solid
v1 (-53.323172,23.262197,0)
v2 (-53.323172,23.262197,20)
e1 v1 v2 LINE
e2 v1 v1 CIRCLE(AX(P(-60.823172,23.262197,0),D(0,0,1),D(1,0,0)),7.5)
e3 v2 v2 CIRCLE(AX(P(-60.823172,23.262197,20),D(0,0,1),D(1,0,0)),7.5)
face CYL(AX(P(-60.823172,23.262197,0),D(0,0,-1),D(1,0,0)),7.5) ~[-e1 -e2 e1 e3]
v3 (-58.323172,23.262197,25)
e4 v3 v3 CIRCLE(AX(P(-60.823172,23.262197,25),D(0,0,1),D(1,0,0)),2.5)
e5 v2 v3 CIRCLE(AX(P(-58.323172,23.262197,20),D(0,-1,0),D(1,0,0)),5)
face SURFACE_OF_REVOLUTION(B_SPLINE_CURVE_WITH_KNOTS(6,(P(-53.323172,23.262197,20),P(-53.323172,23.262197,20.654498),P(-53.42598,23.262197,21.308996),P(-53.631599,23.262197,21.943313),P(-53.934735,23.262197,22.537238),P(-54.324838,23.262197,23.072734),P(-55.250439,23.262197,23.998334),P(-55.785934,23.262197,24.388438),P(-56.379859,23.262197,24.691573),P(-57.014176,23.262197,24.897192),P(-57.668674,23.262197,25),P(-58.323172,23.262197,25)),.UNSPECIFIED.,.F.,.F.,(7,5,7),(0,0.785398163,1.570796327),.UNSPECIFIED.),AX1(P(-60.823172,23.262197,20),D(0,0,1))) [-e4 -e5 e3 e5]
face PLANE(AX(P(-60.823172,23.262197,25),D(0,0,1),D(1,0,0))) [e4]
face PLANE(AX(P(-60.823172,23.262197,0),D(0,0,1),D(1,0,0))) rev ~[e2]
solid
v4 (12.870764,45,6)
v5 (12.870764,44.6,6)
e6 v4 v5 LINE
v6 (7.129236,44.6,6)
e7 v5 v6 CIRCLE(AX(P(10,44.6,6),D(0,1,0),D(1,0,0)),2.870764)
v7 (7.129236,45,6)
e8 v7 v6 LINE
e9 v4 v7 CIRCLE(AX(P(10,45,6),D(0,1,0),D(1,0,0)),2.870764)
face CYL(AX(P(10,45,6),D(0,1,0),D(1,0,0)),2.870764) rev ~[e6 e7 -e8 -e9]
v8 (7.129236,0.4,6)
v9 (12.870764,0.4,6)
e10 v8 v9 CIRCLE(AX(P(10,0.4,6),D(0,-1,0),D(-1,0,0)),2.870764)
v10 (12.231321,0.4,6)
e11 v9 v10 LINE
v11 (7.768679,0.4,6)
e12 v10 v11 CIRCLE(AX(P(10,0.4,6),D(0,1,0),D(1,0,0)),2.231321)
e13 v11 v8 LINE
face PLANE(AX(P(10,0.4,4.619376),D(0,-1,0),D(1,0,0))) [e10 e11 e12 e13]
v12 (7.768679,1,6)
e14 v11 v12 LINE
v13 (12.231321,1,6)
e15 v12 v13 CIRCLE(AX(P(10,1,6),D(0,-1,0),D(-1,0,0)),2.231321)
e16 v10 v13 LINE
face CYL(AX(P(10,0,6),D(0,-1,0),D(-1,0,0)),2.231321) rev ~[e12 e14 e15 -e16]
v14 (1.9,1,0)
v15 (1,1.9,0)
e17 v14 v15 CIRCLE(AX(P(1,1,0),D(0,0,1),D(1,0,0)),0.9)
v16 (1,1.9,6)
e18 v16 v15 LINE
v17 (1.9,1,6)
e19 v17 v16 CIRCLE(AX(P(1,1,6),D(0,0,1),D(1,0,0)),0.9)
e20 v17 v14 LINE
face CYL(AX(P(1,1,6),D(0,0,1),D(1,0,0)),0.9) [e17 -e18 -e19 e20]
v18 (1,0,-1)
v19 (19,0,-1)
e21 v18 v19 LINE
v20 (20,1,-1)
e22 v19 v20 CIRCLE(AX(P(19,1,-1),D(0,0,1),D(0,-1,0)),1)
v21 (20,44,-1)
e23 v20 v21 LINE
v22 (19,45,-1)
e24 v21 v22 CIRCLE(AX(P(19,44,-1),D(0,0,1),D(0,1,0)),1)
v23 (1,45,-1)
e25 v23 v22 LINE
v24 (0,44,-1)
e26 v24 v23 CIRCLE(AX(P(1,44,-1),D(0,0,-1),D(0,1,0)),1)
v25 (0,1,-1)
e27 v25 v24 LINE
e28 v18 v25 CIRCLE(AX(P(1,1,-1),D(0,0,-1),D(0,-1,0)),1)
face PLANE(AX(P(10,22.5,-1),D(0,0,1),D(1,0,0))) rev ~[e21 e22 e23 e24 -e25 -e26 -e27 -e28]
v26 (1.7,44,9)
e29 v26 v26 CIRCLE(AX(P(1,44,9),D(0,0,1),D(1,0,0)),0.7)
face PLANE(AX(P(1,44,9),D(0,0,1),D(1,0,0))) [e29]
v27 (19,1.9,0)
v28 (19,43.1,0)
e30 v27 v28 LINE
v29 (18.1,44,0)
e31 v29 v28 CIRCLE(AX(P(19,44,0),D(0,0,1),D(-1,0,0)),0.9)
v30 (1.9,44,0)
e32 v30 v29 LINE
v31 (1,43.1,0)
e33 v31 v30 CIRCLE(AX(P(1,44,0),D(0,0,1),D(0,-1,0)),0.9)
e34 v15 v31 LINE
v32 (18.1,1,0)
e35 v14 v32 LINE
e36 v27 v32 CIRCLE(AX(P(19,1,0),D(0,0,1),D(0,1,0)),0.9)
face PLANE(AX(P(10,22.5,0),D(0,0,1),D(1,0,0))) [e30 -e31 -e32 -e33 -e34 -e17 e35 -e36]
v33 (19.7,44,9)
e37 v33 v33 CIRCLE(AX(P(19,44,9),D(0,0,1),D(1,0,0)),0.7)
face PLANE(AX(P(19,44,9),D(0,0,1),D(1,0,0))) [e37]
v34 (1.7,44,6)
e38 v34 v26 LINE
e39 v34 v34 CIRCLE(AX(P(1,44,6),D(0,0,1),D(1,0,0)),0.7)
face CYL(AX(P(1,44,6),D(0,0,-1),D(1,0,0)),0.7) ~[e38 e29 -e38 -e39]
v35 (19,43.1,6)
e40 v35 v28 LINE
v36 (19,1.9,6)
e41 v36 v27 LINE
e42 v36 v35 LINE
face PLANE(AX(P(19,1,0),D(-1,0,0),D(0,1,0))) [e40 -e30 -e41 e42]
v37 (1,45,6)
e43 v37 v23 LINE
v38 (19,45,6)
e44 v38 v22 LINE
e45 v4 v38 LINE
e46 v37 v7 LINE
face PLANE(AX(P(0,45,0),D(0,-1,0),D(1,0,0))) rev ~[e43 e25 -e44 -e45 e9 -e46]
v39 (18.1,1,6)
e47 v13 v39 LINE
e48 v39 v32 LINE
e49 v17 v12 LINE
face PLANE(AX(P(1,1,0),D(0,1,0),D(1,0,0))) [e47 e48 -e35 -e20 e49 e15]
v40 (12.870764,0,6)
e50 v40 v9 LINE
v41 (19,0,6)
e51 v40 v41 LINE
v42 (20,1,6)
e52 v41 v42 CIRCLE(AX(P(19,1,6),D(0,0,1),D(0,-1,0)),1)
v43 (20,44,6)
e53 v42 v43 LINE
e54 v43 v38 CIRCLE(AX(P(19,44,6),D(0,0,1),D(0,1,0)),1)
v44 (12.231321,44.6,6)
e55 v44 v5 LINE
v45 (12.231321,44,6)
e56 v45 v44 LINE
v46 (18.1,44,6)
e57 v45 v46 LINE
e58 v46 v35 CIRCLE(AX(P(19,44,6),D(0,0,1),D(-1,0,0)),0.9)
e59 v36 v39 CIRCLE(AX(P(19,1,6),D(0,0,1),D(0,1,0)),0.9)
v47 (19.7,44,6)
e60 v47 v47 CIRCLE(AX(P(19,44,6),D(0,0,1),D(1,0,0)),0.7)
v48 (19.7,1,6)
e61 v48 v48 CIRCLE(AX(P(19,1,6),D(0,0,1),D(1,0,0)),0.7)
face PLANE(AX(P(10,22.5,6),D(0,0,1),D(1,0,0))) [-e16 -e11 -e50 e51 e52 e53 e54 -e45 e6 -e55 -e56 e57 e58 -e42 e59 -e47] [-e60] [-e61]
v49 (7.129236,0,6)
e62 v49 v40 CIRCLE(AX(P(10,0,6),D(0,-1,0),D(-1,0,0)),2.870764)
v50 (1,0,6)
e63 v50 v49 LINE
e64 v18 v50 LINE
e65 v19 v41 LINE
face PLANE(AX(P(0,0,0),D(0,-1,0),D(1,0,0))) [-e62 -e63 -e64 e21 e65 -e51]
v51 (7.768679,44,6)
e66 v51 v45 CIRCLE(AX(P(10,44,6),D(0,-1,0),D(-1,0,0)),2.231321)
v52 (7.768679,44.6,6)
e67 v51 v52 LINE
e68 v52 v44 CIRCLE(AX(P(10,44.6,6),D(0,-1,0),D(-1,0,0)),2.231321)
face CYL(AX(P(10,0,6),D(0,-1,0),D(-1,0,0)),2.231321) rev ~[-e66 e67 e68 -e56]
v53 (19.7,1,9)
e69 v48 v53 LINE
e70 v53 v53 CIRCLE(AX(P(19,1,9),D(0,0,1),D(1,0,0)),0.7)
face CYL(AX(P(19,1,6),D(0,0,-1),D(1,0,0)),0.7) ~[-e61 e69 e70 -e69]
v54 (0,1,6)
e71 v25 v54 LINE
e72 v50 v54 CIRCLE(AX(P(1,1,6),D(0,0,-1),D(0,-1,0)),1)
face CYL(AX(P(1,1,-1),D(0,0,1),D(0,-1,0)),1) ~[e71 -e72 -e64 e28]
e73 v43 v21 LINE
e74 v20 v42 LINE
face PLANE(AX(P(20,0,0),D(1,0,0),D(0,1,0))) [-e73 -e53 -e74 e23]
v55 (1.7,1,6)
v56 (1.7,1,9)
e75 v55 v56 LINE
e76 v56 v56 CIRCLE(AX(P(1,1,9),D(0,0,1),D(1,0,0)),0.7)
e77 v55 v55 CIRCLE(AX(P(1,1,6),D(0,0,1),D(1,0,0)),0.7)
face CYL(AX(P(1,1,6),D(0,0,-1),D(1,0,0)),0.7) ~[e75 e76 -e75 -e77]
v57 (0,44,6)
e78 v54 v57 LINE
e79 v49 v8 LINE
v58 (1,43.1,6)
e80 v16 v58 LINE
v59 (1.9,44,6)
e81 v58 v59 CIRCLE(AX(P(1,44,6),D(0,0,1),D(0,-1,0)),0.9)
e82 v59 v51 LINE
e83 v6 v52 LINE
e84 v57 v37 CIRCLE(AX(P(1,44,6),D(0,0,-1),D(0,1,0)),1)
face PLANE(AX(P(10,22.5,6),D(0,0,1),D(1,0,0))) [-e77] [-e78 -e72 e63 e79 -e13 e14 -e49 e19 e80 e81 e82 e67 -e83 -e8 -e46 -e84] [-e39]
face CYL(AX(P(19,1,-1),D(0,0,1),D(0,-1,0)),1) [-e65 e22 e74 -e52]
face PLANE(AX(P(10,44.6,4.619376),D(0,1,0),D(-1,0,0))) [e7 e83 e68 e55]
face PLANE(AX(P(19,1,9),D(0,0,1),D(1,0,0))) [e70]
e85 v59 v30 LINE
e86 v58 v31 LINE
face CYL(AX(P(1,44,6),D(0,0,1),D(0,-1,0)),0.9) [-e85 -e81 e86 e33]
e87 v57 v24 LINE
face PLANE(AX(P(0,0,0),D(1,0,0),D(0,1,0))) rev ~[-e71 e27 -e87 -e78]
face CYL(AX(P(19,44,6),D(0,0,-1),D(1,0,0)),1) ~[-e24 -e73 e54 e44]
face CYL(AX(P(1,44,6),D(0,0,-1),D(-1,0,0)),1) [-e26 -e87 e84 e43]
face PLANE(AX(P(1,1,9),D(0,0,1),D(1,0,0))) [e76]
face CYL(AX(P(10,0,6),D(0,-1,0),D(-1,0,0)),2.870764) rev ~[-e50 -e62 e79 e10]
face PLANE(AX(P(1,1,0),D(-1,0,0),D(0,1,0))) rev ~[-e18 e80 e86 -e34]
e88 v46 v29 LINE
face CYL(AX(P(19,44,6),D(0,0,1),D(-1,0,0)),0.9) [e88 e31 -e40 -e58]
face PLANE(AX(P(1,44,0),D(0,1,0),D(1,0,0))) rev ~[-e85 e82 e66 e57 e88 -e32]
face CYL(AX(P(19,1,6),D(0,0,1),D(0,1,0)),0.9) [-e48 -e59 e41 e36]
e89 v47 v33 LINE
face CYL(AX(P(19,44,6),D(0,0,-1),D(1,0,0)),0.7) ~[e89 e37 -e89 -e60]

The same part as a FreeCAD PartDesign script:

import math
import FreeCAD as App
import Part
import Sketcher

V = App.Vector
Q = App.Units.Quantity


def edges_at(feature, points):
    """Names of the edges that pass closest to the given points."""
    edges = feature.Shape.Edges
    near = lambda p: min(range(len(edges)), key=lambda i: edges[i].distToShape(Part.Vertex(*p))[0])
    return sorted({f"Edge{near(p) + 1}" for p in points})


def add_polygon(sketch, points):
    """Adds a closed chain of lines whose ends are joined by coincident constraints."""
    first, n = sketch.GeometryCount, len(points)
    for a, b in zip(points, points[1:] + points[:1]):
        sketch.addGeometry(Part.LineSegment(App.Vector(*a, 0), App.Vector(*b, 0)), False)
    for i in range(n):
        sketch.addConstraint(Sketcher.Constraint("Coincident", first + i, 2, first + (i + 1) % n, 1))

doc = App.newDocument("Part")
body = doc.addObject("PartDesign::Body", "Body")

# Sketch on XY plane
sketch1 = doc.addObject("Sketcher::SketchObject", "Sketch")
body.addObject(sketch1)
sketch1.AttachmentSupport = (doc.XY_Plane, [""])
sketch1.MapMode = "FlatFace"
add_polygon(sketch1, [(0, 45), (0, 0), (20, 0), (20, 45)])  # lines 0-3
add_polygon(sketch1, [(19, 1), (1, 1), (1, 44), (19, 44)])  # lines 4-7
sketch1.addConstraint([
    Sketcher.Constraint("Vertical", 0),
    Sketcher.Constraint("Horizontal", 1),
    Sketcher.Constraint("Vertical", 2),
    Sketcher.Constraint("Horizontal", 3),
    Sketcher.Constraint("Horizontal", 4),
    Sketcher.Constraint("Vertical", 5),
    Sketcher.Constraint("Horizontal", 6),
    Sketcher.Constraint("Vertical", 7),
    Sketcher.Constraint("Coincident", 0, 2, -1, 1),
    Sketcher.Constraint("DistanceX", 1, 1, 1, 2, Q("20 mm")),
    Sketcher.Constraint("DistanceX", 4, 2, 4, 1, Q("18 mm")),
    Sketcher.Constraint("DistanceY", 0, 2, 0, 1, Q("45 mm")),
    Sketcher.Constraint("DistanceY", 5, 1, 5, 2, Q("43 mm")),
    Sketcher.Constraint("DistanceX", -1, 1, 4, 2, Q("1 mm")),
    Sketcher.Constraint("DistanceY", -1, 1, 4, 2, Q("1 mm")),
])
pad1 = doc.addObject("PartDesign::Pad", "Pad")
body.addObject(pad1)
pad1.Profile = sketch1
pad1.Length = 6

# Sketch on XY plane
sketch2 = doc.addObject("Sketcher::SketchObject", "Sketch001")
body.addObject(sketch2)
sketch2.AttachmentSupport = (doc.XY_Plane, [""])
sketch2.MapMode = "FlatFace"
add_polygon(sketch2, [(0, 45), (0, 0), (20, 0), (20, 45)])  # lines 0-3
sketch2.addConstraint([
    Sketcher.Constraint("Vertical", 0),
    Sketcher.Constraint("Horizontal", 1),
    Sketcher.Constraint("Vertical", 2),
    Sketcher.Constraint("Horizontal", 3),
    Sketcher.Constraint("Coincident", 0, 2, -1, 1),
    Sketcher.Constraint("DistanceX", 1, 1, 1, 2, Q("20 mm")),
    Sketcher.Constraint("DistanceY", 0, 2, 0, 1, Q("45 mm")),
])
pad2 = doc.addObject("PartDesign::Pad", "Pad001")
body.addObject(pad2)
pad2.Profile = sketch2
pad2.Length = 1
pad2.Reversed = True

# Sketch on XY plane
sketch3 = doc.addObject("Sketcher::SketchObject", "Sketch002")
body.addObject(sketch3)
sketch3.AttachmentSupport = (doc.XY_Plane, [""])
sketch3.MapMode = "FlatFace"
sketch3.AttachmentOffset = App.Placement(V(0, 0, 6), App.Rotation())
sketch3.addGeometry([
    Part.ArcOfCircle(Part.Circle(V(19, 44, 0), V(0, 0, 1), 0.9), math.radians(-90), math.radians(0)),  # 0
    Part.ArcOfCircle(Part.Circle(V(19, 44, 0), V(0, 0, 1), 0.9), math.radians(0), math.radians(180)),  # 1
    Part.ArcOfCircle(Part.Circle(V(19, 44, 0), V(0, 0, 1), 0.9), math.radians(180), math.radians(270)),  # 2
    Part.ArcOfCircle(Part.Circle(V(19, 1, 0), V(0, 0, 1), 0.9), math.radians(90), math.radians(180)),  # 3
    Part.ArcOfCircle(Part.Circle(V(19, 1, 0), V(0, 0, 1), 0.9), math.radians(180), math.radians(360)),  # 4
    Part.ArcOfCircle(Part.Circle(V(19, 1, 0), V(0, 0, 1), 0.9), math.radians(0), math.radians(90)),  # 5
    Part.LineSegment(V(1, 1, 0), V(1.9, 1, 0)),  # 6
    Part.ArcOfCircle(Part.Circle(V(1, 1, 0), V(0, 0, 1), 0.9), math.radians(0), math.radians(90)),  # 7
    Part.LineSegment(V(1, 1.9, 0), V(1, 1, 0)),  # 8
    Part.ArcOfCircle(Part.Circle(V(1, 44, 0), V(0, 0, 1), 0.9), math.radians(-90), math.radians(0)),  # 9
    Part.LineSegment(V(1.9, 44, 0), V(1, 44, 0)),  # 10
    Part.LineSegment(V(1, 44, 0), V(1, 43.1, 0)),  # 11
], False)
sketch3.addConstraint([
    Sketcher.Constraint("Tangent", 0, 2, 1, 1),
    Sketcher.Constraint("Tangent", 1, 2, 2, 1),
    Sketcher.Constraint("Tangent", 2, 2, 0, 1),
    Sketcher.Constraint("Tangent", 3, 2, 4, 1),
    Sketcher.Constraint("Tangent", 4, 2, 5, 1),
    Sketcher.Constraint("Tangent", 5, 2, 3, 1),
    Sketcher.Constraint("Coincident", 6, 2, 7, 1),
    Sketcher.Constraint("Coincident", 7, 2, 8, 1),
    Sketcher.Constraint("Coincident", 8, 2, 6, 1),
    Sketcher.Constraint("Coincident", 9, 2, 10, 1),
    Sketcher.Constraint("Coincident", 10, 2, 11, 1),
    Sketcher.Constraint("Coincident", 11, 2, 9, 1),
    Sketcher.Constraint("Horizontal", 6),
    Sketcher.Constraint("Vertical", 8),
    Sketcher.Constraint("Horizontal", 10),
    Sketcher.Constraint("Vertical", 11),
    Sketcher.Constraint("Coincident", 8, 2, 7, 3),
    Sketcher.Constraint("Coincident", 10, 2, 9, 3),
    Sketcher.Constraint("Equal", 2, 3),
    Sketcher.Constraint("Equal", 5, 7),
    Sketcher.Constraint("Equal", 7, 9),
    Sketcher.Constraint("Horizontal", 5, 3, 7, 3),
    Sketcher.Constraint("Horizontal", 2, 3, 9, 3),
    Sketcher.Constraint("Horizontal", 9, 3, 0, 2),
    Sketcher.Constraint("Horizontal", 0, 2, 1, 2),
    Sketcher.Constraint("Horizontal", 7, 3, 3, 2),
    Sketcher.Constraint("Horizontal", 3, 2, 4, 2),
    Sketcher.Constraint("Vertical", 2, 3, 3, 3),
    Sketcher.Constraint("Vertical", 7, 3, 9, 3),
    Sketcher.Constraint("Vertical", 5, 3, 2, 2),
    Sketcher.Constraint("Vertical", 2, 2, 5, 2),
    Sketcher.Constraint("Radius", 0, Q("0.9 mm")),
    Sketcher.Constraint("DistanceX", -1, 1, 0, 3, Q("19 mm")),
    Sketcher.Constraint("DistanceY", -1, 1, 0, 3, Q("44 mm")),
    Sketcher.Constraint("DistanceY", -1, 1, 3, 3, Q("1 mm")),
    Sketcher.Constraint("DistanceX", -1, 1, 7, 3, Q("1 mm")),
])
pad3 = doc.addObject("PartDesign::Pad", "Pad002")
body.addObject(pad3)
pad3.Profile = sketch3
pad3.Length = 6
pad3.Reversed = True

# Sketch on XY plane
sketch4 = doc.addObject("Sketcher::SketchObject", "Sketch003")
body.addObject(sketch4)
sketch4.AttachmentSupport = (doc.XY_Plane, [""])
sketch4.MapMode = "FlatFace"
sketch4.AttachmentOffset = App.Placement(V(0, 0, 6), App.Rotation())
sketch4.addGeometry([
    Part.Circle(V(1, 1, 0), V(0, 0, 1), 0.7),
    Part.Circle(V(19, 1, 0), V(0, 0, 1), 0.7),
    Part.Circle(V(1, 44, 0), V(0, 0, 1), 0.7),
    Part.Circle(V(19, 44, 0), V(0, 0, 1), 0.7),
], False)
sketch4.addConstraint([
    Sketcher.Constraint("Equal", 0, 1),
    Sketcher.Constraint("Equal", 1, 2),
    Sketcher.Constraint("Equal", 2, 3),
    Sketcher.Constraint("Horizontal", 0, 3, 1, 3),
    Sketcher.Constraint("Horizontal", 2, 3, 3, 3),
    Sketcher.Constraint("Vertical", 0, 3, 2, 3),
    Sketcher.Constraint("Vertical", 1, 3, 3, 3),
    Sketcher.Constraint("Diameter", 0, Q("1.4 mm")),
    Sketcher.Constraint("DistanceX", -1, 1, 0, 3, Q("1 mm")),
    Sketcher.Constraint("DistanceY", -1, 1, 0, 3, Q("1 mm")),
    Sketcher.Constraint("DistanceX", -1, 1, 1, 3, Q("19 mm")),
    Sketcher.Constraint("DistanceY", -1, 1, 2, 3, Q("44 mm")),
])
pad4 = doc.addObject("PartDesign::Pad", "Pad003")
body.addObject(pad4)
pad4.Profile = sketch4
pad4.Length = 3
doc.recompute()

fillet = doc.addObject("PartDesign::Fillet", "Fillet")
body.addObject(fillet)
fillet.Base = (pad4, edges_at(pad4, [(20, 0, 2.5)]))
fillet.Radius = 1
doc.recompute()

fillet2 = doc.addObject("PartDesign::Fillet", "Fillet001")
body.addObject(fillet2)
fillet2.Base = (fillet, edges_at(fillet, [(0, 0, 2.5)]))
fillet2.Radius = 1
doc.recompute()

fillet3 = doc.addObject("PartDesign::Fillet", "Fillet002")
body.addObject(fillet3)
fillet3.Base = (fillet2, edges_at(fillet2, [(0, 45, 2.5), (20, 45, 2.5)]))
fillet3.Radius = 1

# Sketch on XZ plane
sketch5 = doc.addObject("Sketcher::SketchObject", "Sketch004")
body.addObject(sketch5)
sketch5.AttachmentSupport = (doc.XZ_Plane, [""])
sketch5.MapMode = "FlatFace"
sketch5.addGeometry([
    Part.ArcOfCircle(Part.Circle(V(10, 6, 0), V(0, 0, 1), 2.2), math.radians(180), math.radians(360)),
    Part.LineSegment(V(12.2, 6, 0), V(7.8, 6, 0)),
], False)
sketch5.addConstraint([
    Sketcher.Constraint("Coincident", 0, 1, 1, 2),
    Sketcher.Constraint("Coincident", 1, 1, 0, 2),
    Sketcher.Constraint("Horizontal", 1),
    Sketcher.Constraint("DistanceX", -1, 1, 0, 3, Q("10 mm")),
    Sketcher.Constraint("DistanceY", -1, 1, 0, 3, Q("6 mm")),
    Sketcher.Constraint("DistanceY", -1, 1, 0, 1, Q("6 mm")),
    Sketcher.Constraint("Radius", 0, Q("2.231321 mm")),
])
pocket1 = doc.addObject("PartDesign::Pocket", "Pocket")
body.addObject(pocket1)
pocket1.Profile = sketch5
pocket1.Type = "ThroughAll"

# Sketch on XZ plane
sketch6 = doc.addObject("Sketcher::SketchObject", "Sketch005")
body.addObject(sketch6)
sketch6.AttachmentSupport = (doc.XZ_Plane, [""])
sketch6.MapMode = "FlatFace"
sketch6.addGeometry([
    Part.ArcOfCircle(Part.Circle(V(10, 6, 0), V(0, 0, 1), 2.9), math.radians(180), math.radians(360)),
    Part.LineSegment(V(12.9, 6, 0), V(12.2, 6, 0)),
    Part.ArcOfCircle(Part.Circle(V(10, 6, 0), V(0, 0, 1), 2.2), math.radians(180), math.radians(360)),
    Part.LineSegment(V(7.8, 6, 0), V(7.1, 6, 0)),
], False)
sketch6.addConstraint([
    Sketcher.Constraint("Coincident", 0, 2, 1, 1),
    Sketcher.Constraint("Coincident", 1, 2, 2, 2),
    Sketcher.Constraint("Coincident", 2, 1, 3, 1),
    Sketcher.Constraint("Coincident", 3, 2, 0, 1),
    Sketcher.Constraint("Horizontal", 1),
    Sketcher.Constraint("Horizontal", 3),
    Sketcher.Constraint("Coincident", 2, 3, 0, 3),
    Sketcher.Constraint("Horizontal", 2, 3, 0, 2),
    Sketcher.Constraint("Horizontal", 1, 2, 2, 1),
    Sketcher.Constraint("DistanceX", -1, 1, 0, 3, Q("10 mm")),
    Sketcher.Constraint("DistanceY", -1, 1, 0, 3, Q("6 mm")),
    Sketcher.Constraint("Radius", 2, Q("2.231321 mm")),
    Sketcher.Constraint("Radius", 0, Q("2.870764 mm")),
])
pocket2 = doc.addObject("PartDesign::Pocket", "Pocket001")
body.addObject(pocket2)
pocket2.Profile = sketch6
pocket2.Length = 0.4

# Sketch on XZ plane
sketch7 = doc.addObject("Sketcher::SketchObject", "Sketch006")
body.addObject(sketch7)
sketch7.AttachmentSupport = (doc.XZ_Plane, [""])
sketch7.MapMode = "FlatFace"
sketch7.AttachmentOffset = App.Placement(V(0, 0, -45), App.Rotation())
sketch7.addGeometry([
    Part.LineSegment(V(7.1, 6, 0), V(7.8, 6, 0)),
    Part.ArcOfCircle(Part.Circle(V(10, 6, 0), V(0, 0, 1), 2.2), math.radians(180), math.radians(360)),
    Part.LineSegment(V(12.2, 6, 0), V(12.9, 6, 0)),
    Part.ArcOfCircle(Part.Circle(V(10, 6, 0), V(0, 0, 1), 2.9), math.radians(180), math.radians(360)),
], False)
sketch7.addConstraint([
    Sketcher.Constraint("Coincident", 0, 2, 1, 1),
    Sketcher.Constraint("Coincident", 1, 2, 2, 1),
    Sketcher.Constraint("Coincident", 2, 2, 3, 2),
    Sketcher.Constraint("Coincident", 3, 1, 0, 1),
    Sketcher.Constraint("Horizontal", 0),
    Sketcher.Constraint("Horizontal", 2),
    Sketcher.Constraint("Coincident", 3, 3, 1, 3),
    Sketcher.Constraint("Horizontal", 3, 3, 0, 2),
    Sketcher.Constraint("Horizontal", 0, 2, 1, 2),
    Sketcher.Constraint("DistanceX", -1, 1, 1, 3, Q("10 mm")),
    Sketcher.Constraint("DistanceY", -1, 1, 1, 3, Q("6 mm")),
    Sketcher.Constraint("Radius", 1, Q("2.231321 mm")),
    Sketcher.Constraint("Radius", 3, Q("2.870764 mm")),
])
pocket3 = doc.addObject("PartDesign::Pocket", "Pocket002")
body.addObject(pocket3)
pocket3.Profile = sketch7
pocket3.Length = 0.4
pocket3.Reversed = True
body2 = doc.addObject("PartDesign::Body", "Body001")

# Sketch on XY plane
sketch8 = doc.addObject("Sketcher::SketchObject", "Sketch007")
body2.addObject(sketch8)
sketch8.AttachmentSupport = (doc.getObject("XY_Plane001"), [""])
sketch8.MapMode = "FlatFace"
sketch8.addGeometry(Part.Circle(V(-61, 23, 0), V(0, 0, 1), 8), False)
sketch8.addConstraint([
    Sketcher.Constraint("Diameter", 0, Q("15 mm")),
    Sketcher.Constraint("DistanceX", 0, 3, -1, 1, Q("60.823172 mm")),
    Sketcher.Constraint("DistanceY", -1, 1, 0, 3, Q("23.262197 mm")),
])
pad5 = doc.addObject("PartDesign::Pad", "Pad004")
body2.addObject(pad5)
pad5.Profile = sketch8
pad5.Length = 25
doc.recompute()

fillet4 = doc.addObject("PartDesign::Fillet", "Fillet003")
body2.addObject(fillet4)
fillet4.Base = (pad5, edges_at(pad5, [(-68.323, 23.262, 25)]))
fillet4.Radius = 5

doc.recompute()
